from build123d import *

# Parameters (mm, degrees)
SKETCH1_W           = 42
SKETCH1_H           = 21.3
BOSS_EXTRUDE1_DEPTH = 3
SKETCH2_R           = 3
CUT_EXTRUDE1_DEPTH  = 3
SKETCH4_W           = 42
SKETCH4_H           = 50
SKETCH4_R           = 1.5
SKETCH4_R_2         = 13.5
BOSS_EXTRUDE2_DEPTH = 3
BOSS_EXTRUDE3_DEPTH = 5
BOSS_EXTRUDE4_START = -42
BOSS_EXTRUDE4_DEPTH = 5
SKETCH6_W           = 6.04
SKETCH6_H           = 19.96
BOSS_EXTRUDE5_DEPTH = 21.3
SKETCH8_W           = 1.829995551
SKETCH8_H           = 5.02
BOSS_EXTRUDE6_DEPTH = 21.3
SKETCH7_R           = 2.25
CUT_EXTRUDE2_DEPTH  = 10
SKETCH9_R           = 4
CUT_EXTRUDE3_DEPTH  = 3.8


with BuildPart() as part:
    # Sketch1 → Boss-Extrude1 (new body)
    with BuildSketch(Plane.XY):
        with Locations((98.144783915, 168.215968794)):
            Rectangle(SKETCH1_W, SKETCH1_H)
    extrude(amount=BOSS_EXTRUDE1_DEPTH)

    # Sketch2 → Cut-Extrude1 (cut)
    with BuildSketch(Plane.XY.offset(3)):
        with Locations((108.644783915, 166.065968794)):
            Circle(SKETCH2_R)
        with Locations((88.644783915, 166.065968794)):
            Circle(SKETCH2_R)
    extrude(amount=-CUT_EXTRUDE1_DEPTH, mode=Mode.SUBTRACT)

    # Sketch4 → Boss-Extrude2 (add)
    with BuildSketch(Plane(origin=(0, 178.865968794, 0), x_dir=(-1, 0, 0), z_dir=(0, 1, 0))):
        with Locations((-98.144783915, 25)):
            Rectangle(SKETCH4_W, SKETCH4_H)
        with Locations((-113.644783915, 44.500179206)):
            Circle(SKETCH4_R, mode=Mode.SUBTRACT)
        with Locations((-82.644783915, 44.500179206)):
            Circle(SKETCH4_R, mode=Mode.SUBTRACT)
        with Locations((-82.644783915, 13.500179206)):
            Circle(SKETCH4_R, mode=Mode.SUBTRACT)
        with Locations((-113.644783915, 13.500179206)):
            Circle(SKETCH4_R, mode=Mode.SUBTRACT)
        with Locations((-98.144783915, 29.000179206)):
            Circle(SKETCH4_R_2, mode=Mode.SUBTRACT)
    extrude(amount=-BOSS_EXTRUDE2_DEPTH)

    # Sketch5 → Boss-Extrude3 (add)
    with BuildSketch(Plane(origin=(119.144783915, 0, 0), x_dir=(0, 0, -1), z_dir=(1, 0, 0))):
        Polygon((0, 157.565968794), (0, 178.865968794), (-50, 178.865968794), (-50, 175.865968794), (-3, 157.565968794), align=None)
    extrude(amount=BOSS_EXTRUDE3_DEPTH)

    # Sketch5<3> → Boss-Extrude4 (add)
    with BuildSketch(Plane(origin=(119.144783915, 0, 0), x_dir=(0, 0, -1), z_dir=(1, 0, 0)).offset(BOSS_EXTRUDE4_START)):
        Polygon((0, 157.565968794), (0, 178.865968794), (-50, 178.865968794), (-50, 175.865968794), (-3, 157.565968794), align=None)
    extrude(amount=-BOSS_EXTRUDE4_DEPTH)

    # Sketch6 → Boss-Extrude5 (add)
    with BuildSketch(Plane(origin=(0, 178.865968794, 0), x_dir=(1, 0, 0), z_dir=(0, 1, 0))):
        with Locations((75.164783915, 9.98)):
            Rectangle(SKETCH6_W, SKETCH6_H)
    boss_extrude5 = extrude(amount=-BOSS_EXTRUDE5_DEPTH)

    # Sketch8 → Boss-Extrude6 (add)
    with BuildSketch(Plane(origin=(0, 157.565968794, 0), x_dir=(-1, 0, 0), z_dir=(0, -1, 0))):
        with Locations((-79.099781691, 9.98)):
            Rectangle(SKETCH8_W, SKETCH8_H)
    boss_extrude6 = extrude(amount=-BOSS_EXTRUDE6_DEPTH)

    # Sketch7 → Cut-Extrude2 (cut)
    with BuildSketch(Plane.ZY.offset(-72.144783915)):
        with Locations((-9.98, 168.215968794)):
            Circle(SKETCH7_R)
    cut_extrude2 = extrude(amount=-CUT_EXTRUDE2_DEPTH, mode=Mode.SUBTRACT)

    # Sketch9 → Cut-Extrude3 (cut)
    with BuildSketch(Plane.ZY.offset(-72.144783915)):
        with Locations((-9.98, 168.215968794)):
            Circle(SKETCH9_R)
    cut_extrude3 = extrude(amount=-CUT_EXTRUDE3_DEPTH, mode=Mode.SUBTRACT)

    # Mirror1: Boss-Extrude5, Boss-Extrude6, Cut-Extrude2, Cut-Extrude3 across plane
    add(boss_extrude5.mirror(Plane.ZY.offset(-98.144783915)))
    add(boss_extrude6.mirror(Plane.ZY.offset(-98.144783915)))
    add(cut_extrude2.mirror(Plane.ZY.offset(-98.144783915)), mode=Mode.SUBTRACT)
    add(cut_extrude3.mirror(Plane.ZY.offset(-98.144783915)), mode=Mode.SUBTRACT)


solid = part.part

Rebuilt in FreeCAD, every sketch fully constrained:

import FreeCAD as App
import Part
import Sketcher
Q = App.Units.Quantity

doc = App.newDocument("Part")
body = doc.addObject("PartDesign::Body", "Body")

# Sketch on XY plane
sketch1 = body.newObject("Sketcher::SketchObject", "Sketch")
sketch1.AttachmentSupport = (doc.getObject("XY_Plane"), [""])
sketch1.MapMode = "FlatFace"
sketch1.addGeometry([
    Part.LineSegment(App.Vector(77, 179, 0), App.Vector(77, 158, 0)),
    Part.LineSegment(App.Vector(77, 158, 0), App.Vector(119, 158, 0)),
    Part.LineSegment(App.Vector(119, 158, 0), App.Vector(119, 179, 0)),
    Part.LineSegment(App.Vector(119, 179, 0), App.Vector(77, 179, 0)),
], False)
sketch1.addConstraint([
    Sketcher.Constraint("Coincident", 0, 2, 1, 1),
    Sketcher.Constraint("Coincident", 1, 2, 2, 1),
    Sketcher.Constraint("Coincident", 2, 2, 3, 1),
    Sketcher.Constraint("Coincident", 3, 2, 0, 1),
    Sketcher.Constraint("Vertical", 0),
    Sketcher.Constraint("Horizontal", 1),
    Sketcher.Constraint("Vertical", 2),
    Sketcher.Constraint("Horizontal", 3),
    Sketcher.Constraint("DistanceX", 1, 1, 1, 2, Q("42 mm")),
    Sketcher.Constraint("DistanceY", 0, 2, 0, 1, Q("21.3 mm")),
    Sketcher.Constraint("DistanceY", -1, 1, 0, 2, Q("157.565969 mm")),
    Sketcher.Constraint("DistanceX", -1, 1, 0, 2, Q("77.144784 mm")),
])
pad1 = body.newObject("PartDesign::Pad", "Pad")
pad1.Profile = sketch1
pad1.Length = 3

# Sketch on XY plane
sketch2 = body.newObject("Sketcher::SketchObject", "Sketch001")
sketch2.AttachmentSupport = (doc.getObject("XY_Plane"), [""])
sketch2.MapMode = "FlatFace"
sketch2.AttachmentOffset = App.Placement(App.Vector(0, 0, 3), App.Rotation())
sketch2.addGeometry([
    Part.Circle(App.Vector(108.6, 166.1, 0), App.Vector(0, 0, 1), 3),
    Part.Circle(App.Vector(88.6, 166.1, 0), App.Vector(0, 0, 1), 3),
], False)
sketch2.addConstraint([
    Sketcher.Constraint("Equal", 0, 1),
    Sketcher.Constraint("Horizontal", 0, 3, 1, 3),
    Sketcher.Constraint("Diameter", 0, Q("6 mm")),
    Sketcher.Constraint("DistanceX", 1, 3, 0, 3, Q("20 mm")),
    Sketcher.Constraint("DistanceY", -1, 1, 0, 3, Q("166.065969 mm")),
    Sketcher.Constraint("DistanceX", -1, 1, 0, 3, Q("108.644784 mm")),
])
pocket1 = body.newObject("PartDesign::Pocket", "Pocket")
pocket1.Profile = sketch2
pocket1.Length = 3

# Sketch on XZ plane
sketch3 = body.newObject("Sketcher::SketchObject", "Sketch002")
sketch3.AttachmentSupport = (doc.getObject("XZ_Plane"), [""])
sketch3.MapMode = "FlatFace"
sketch3.AttachmentOffset = App.Placement(App.Vector(0, 0, -178.865969), App.Rotation())
sketch3.addGeometry([
    Part.LineSegment(App.Vector(119.1, 50, 0), App.Vector(119.1, 0, 0)),  # 0
    Part.LineSegment(App.Vector(119.1, 0, 0), App.Vector(77.1, 0, 0)),  # 1
    Part.LineSegment(App.Vector(77.1, 0, 0), App.Vector(77.1, 50, 0)),  # 2
    Part.LineSegment(App.Vector(77.1, 50, 0), App.Vector(119.1, 50, 0)),  # 3
    Part.Circle(App.Vector(113.6, 13.5, 0), App.Vector(0, 0, 1), 1.5),  # 4
    Part.Circle(App.Vector(82.6, 13.5, 0), App.Vector(0, 0, 1), 1.5),  # 5
    Part.Circle(App.Vector(113.6, 44.5, 0), App.Vector(0, 0, 1), 1.5),  # 6
    Part.Circle(App.Vector(98.1, 29, 0), App.Vector(0, 0, 1), 13.5),  # 7
    Part.Circle(App.Vector(82.6, 44.5, 0), App.Vector(0, 0, 1), 1.5),  # 8
], False)
sketch3.addConstraint([
    Sketcher.Constraint("Coincident", 0, 2, 1, 1),
    Sketcher.Constraint("Coincident", 1, 2, 2, 1),
    Sketcher.Constraint("Coincident", 2, 2, 3, 1),
    Sketcher.Constraint("Coincident", 3, 2, 0, 1),
    Sketcher.Constraint("Vertical", 0),
    Sketcher.Constraint("Horizontal", 1),
    Sketcher.Constraint("Vertical", 2),
    Sketcher.Constraint("Horizontal", 3),
    Sketcher.Constraint("Equal", 4, 5),
    Sketcher.Constraint("Equal", 5, 6),
    Sketcher.Constraint("Equal", 6, 8),
    Sketcher.Constraint("PointOnObject", 0, 2, -1),
    Sketcher.Constraint("Horizontal", 4, 3, 5, 3),
    Sketcher.Constraint("Horizontal", 6, 3, 8, 3),
    Sketcher.Constraint("Vertical", 4, 3, 6, 3),
    Sketcher.Constraint("Vertical", 5, 3, 8, 3),
    Sketcher.Constraint("Diameter", 4, Q("3 mm")),
    Sketcher.Constraint("Diameter", 7, Q("27 mm")),
    Sketcher.Constraint("DistanceX", 1, 2, 1, 1, Q("42 mm")),
    Sketcher.Constraint("DistanceY", 0, 2, 0, 1, Q("50 mm")),
    Sketcher.Constraint("DistanceX", 5, 3, 4, 3, Q("31 mm")),
    Sketcher.Constraint("DistanceY", 4, 3, 6, 3, Q("31 mm")),
    Sketcher.Constraint("DistanceX", 7, 3, 0, 2, Q("21 mm")),
    Sketcher.Constraint("DistanceX", 7, 3, 4, 3, Q("15.5 mm")),
    Sketcher.Constraint("DistanceY", 4, 3, 7, 3, Q("15.5 mm")),
    Sketcher.Constraint("DistanceY", -1, 1, 4, 3, Q("13.500179 mm")),
    Sketcher.Constraint("DistanceX", -1, 1, 4, 3, Q("113.644784 mm")),
])
pad2 = body.newObject("PartDesign::Pad", "Pad001")
pad2.Profile = sketch3
pad2.Length = 3

# Sketch on YZ plane
sketch4 = body.newObject("Sketcher::SketchObject", "Sketch003")
sketch4.AttachmentSupport = (doc.getObject("YZ_Plane"), [""])
sketch4.MapMode = "FlatFace"
sketch4.AttachmentOffset = App.Placement(App.Vector(0, 0, 119.144784), App.Rotation())
sketch4.addGeometry([
    Part.LineSegment(App.Vector(157.6, 0, 0), App.Vector(178.9, 0, 0)),  # 0
    Part.LineSegment(App.Vector(178.9, 0, 0), App.Vector(178.9, 50, 0)),  # 1
    Part.LineSegment(App.Vector(178.9, 50, 0), App.Vector(175.9, 50, 0)),  # 2
    Part.LineSegment(App.Vector(175.9, 50, 0), App.Vector(157.6, 3, 0)),  # 3
    Part.LineSegment(App.Vector(157.6, 3, 0), App.Vector(157.6, 0, 0)),  # 4
], False)
sketch4.addConstraint([
    Sketcher.Constraint("Coincident", 0, 2, 1, 1),
    Sketcher.Constraint("Coincident", 1, 2, 2, 1),
    Sketcher.Constraint("Coincident", 2, 2, 3, 1),
    Sketcher.Constraint("Coincident", 3, 2, 4, 1),
    Sketcher.Constraint("Coincident", 4, 2, 0, 1),
    Sketcher.Constraint("Horizontal", 0),
    Sketcher.Constraint("Vertical", 1),
    Sketcher.Constraint("Horizontal", 2),
    Sketcher.Constraint("Vertical", 4),
    Sketcher.Constraint("PointOnObject", 0, 2, -1),
    Sketcher.Constraint("Equal", 2, 4),
    Sketcher.Constraint("DistanceX", 2, 2, 2, 1, Q("3 mm")),
    Sketcher.Constraint("DistanceY", 1, 1, 1, 2, Q("50 mm")),
    Sketcher.Constraint("DistanceX", 0, 1, 0, 2, Q("21.3 mm")),
    Sketcher.Constraint("DistanceX", -1, 1, 0, 2, Q("178.865969 mm")),
])
pad3 = body.newObject("PartDesign::Pad", "Pad002")
pad3.Profile = sketch4
pad3.Length = 5

# Sketch on YZ plane
sketch5 = body.newObject("Sketcher::SketchObject", "Sketch004")
sketch5.AttachmentSupport = (doc.getObject("YZ_Plane"), [""])
sketch5.MapMode = "FlatFace"
sketch5.AttachmentOffset = App.Placement(App.Vector(0, 0, 77.144784), App.Rotation())
sketch5.addGeometry([
    Part.LineSegment(App.Vector(157.6, 0, 0), App.Vector(178.9, 0, 0)),  # 0
    Part.LineSegment(App.Vector(178.9, 0, 0), App.Vector(178.9, 50, 0)),  # 1
    Part.LineSegment(App.Vector(178.9, 50, 0), App.Vector(175.9, 50, 0)),  # 2
    Part.LineSegment(App.Vector(175.9, 50, 0), App.Vector(157.6, 3, 0)),  # 3
    Part.LineSegment(App.Vector(157.6, 3, 0), App.Vector(157.6, 0, 0)),  # 4
], False)
sketch5.addConstraint([
    Sketcher.Constraint("Coincident", 0, 2, 1, 1),
    Sketcher.Constraint("Coincident", 1, 2, 2, 1),
    Sketcher.Constraint("Coincident", 2, 2, 3, 1),
    Sketcher.Constraint("Coincident", 3, 2, 4, 1),
    Sketcher.Constraint("Coincident", 4, 2, 0, 1),
    Sketcher.Constraint("Horizontal", 0),
    Sketcher.Constraint("Vertical", 1),
    Sketcher.Constraint("Horizontal", 2),
    Sketcher.Constraint("Vertical", 4),
    Sketcher.Constraint("PointOnObject", 0, 2, -1),
    Sketcher.Constraint("Equal", 2, 4),
    Sketcher.Constraint("DistanceX", 2, 2, 2, 1, Q("3 mm")),
    Sketcher.Constraint("DistanceY", 1, 1, 1, 2, Q("50 mm")),
    Sketcher.Constraint("DistanceX", 0, 1, 0, 2, Q("21.3 mm")),
    Sketcher.Constraint("DistanceX", -1, 1, 0, 2, Q("178.865969 mm")),
])
pad4 = body.newObject("PartDesign::Pad", "Pad003")
pad4.Profile = sketch5
pad4.Length = 5
pad4.Reversed = True

# Sketch on XZ plane
sketch6 = body.newObject("Sketcher::SketchObject", "Sketch005")
sketch6.AttachmentSupport = (doc.getObject("XZ_Plane"), [""])
sketch6.MapMode = "FlatFace"
sketch6.AttachmentOffset = App.Placement(App.Vector(0, 0, -178.865969), App.Rotation())
sketch6.addGeometry([
    Part.LineSegment(App.Vector(72, -20, 0), App.Vector(72, 0, 0)),
    Part.LineSegment(App.Vector(72, 0, 0), App.Vector(78, 0, 0)),
    Part.LineSegment(App.Vector(78, 0, 0), App.Vector(78, -20, 0)),
    Part.LineSegment(App.Vector(78, -20, 0), App.Vector(72, -20, 0)),
], False)
sketch6.addConstraint([
    Sketcher.Constraint("Coincident", 0, 2, 1, 1),
    Sketcher.Constraint("Coincident", 1, 2, 2, 1),
    Sketcher.Constraint("Coincident", 2, 2, 3, 1),
    Sketcher.Constraint("Coincident", 3, 2, 0, 1),
    Sketcher.Constraint("Vertical", 0),
    Sketcher.Constraint("Horizontal", 1),
    Sketcher.Constraint("Vertical", 2),
    Sketcher.Constraint("Horizontal", 3),
    Sketcher.Constraint("PointOnObject", 0, 2, -1),
    Sketcher.Constraint("DistanceX", 1, 1, 1, 2, Q("6.04 mm")),
    Sketcher.Constraint("DistanceY", 0, 1, 0, 2, Q("19.96 mm")),
    Sketcher.Constraint("DistanceX", -1, 1, 0, 2, Q("72.144784 mm")),
])
pad5 = body.newObject("PartDesign::Pad", "Pad004")
pad5.Profile = sketch6
pad5.Length = 21.3

# Sketch on XZ plane
sketch7 = body.newObject("Sketcher::SketchObject", "Sketch006")
sketch7.AttachmentSupport = (doc.getObject("XZ_Plane"), [""])
sketch7.MapMode = "FlatFace"
sketch7.AttachmentOffset = App.Placement(App.Vector(0, 0, -157.565969), App.Rotation())
sketch7.addGeometry([
    Part.LineSegment(App.Vector(80, -12.5, 0), App.Vector(80, -7.5, 0)),
    Part.LineSegment(App.Vector(80, -7.5, 0), App.Vector(78.2, -7.5, 0)),
    Part.LineSegment(App.Vector(78.2, -7.5, 0), App.Vector(78.2, -12.5, 0)),
    Part.LineSegment(App.Vector(78.2, -12.5, 0), App.Vector(80, -12.5, 0)),
], False)
sketch7.addConstraint([
    Sketcher.Constraint("Coincident", 0, 2, 1, 1),
    Sketcher.Constraint("Coincident", 1, 2, 2, 1),
    Sketcher.Constraint("Coincident", 2, 2, 3, 1),
    Sketcher.Constraint("Coincident", 3, 2, 0, 1),
    Sketcher.Constraint("Vertical", 0),
    Sketcher.Constraint("Horizontal", 1),
    Sketcher.Constraint("Vertical", 2),
    Sketcher.Constraint("Horizontal", 3),
    Sketcher.Constraint("DistanceY", 0, 1, 0, 2, Q("5.02 mm")),
    Sketcher.Constraint("DistanceY", 0, 2, -1, 1, Q("7.47 mm")),
    Sketcher.Constraint("DistanceX", 1, 2, 1, 1, Q("1.829996 mm")),
    Sketcher.Constraint("DistanceX", -1, 1, 0, 2, Q("80.014779 mm")),
])
pad6 = body.newObject("PartDesign::Pad", "Pad005")
pad6.Profile = sketch7
pad6.Length = 21.3
pad6.Reversed = True

# Sketch on YZ plane
sketch8 = body.newObject("Sketcher::SketchObject", "Sketch007")
sketch8.AttachmentSupport = (doc.getObject("YZ_Plane"), [""])
sketch8.MapMode = "FlatFace"
sketch8.AttachmentOffset = App.Placement(App.Vector(0, 0, 72.144784), App.Rotation())
sketch8.addGeometry(Part.Circle(App.Vector(168.2, -10, 0), App.Vector(0, 0, 1), 2.2), False)
sketch8.addConstraint([
    Sketcher.Constraint("Diameter", 0, Q("4.5 mm")),
    Sketcher.Constraint("DistanceY", 0, 3, -1, 1, Q("9.98 mm")),
    Sketcher.Constraint("DistanceX", -1, 1, 0, 3, Q("168.215969 mm")),
])
pocket2 = body.newObject("PartDesign::Pocket", "Pocket001")
pocket2.Profile = sketch8
pocket2.Length = 10
pocket2.Reversed = True

# Sketch on YZ plane
sketch9 = body.newObject("Sketcher::SketchObject", "Sketch008")
sketch9.AttachmentSupport = (doc.getObject("YZ_Plane"), [""])
sketch9.MapMode = "FlatFace"
sketch9.AttachmentOffset = App.Placement(App.Vector(0, 0, 72.144784), App.Rotation())
sketch9.addGeometry(Part.Circle(App.Vector(168.2, -10, 0), App.Vector(0, 0, 1), 4), False)
sketch9.addConstraint([
    Sketcher.Constraint("Diameter", 0, Q("8 mm")),
    Sketcher.Constraint("DistanceY", 0, 3, -1, 1, Q("9.98 mm")),
    Sketcher.Constraint("DistanceX", -1, 1, 0, 3, Q("168.215969 mm")),
])
pocket3 = body.newObject("PartDesign::Pocket", "Pocket002")
pocket3.Profile = sketch9
pocket3.Length = 3.8
pocket3.Reversed = True
doc.recompute()

datumplane = body.newObject("PartDesign::Plane", "DatumPlane")
datumplane.AttachmentSupport = (doc.getObject("YZ_Plane"), [""])
datumplane.MapMode = "FlatFace"
datumplane.AttachmentOffset = App.Placement(App.Vector(0, 0, 98.144784), App.Rotation())
mirrored = body.newObject("PartDesign::Mirrored", "Mirrored")
mirrored.Originals = [pad5, pad6, pocket2, pocket3]
mirrored.MirrorPlane = (datumplane, [""])
body.Tip = mirrored

doc.recompute()
